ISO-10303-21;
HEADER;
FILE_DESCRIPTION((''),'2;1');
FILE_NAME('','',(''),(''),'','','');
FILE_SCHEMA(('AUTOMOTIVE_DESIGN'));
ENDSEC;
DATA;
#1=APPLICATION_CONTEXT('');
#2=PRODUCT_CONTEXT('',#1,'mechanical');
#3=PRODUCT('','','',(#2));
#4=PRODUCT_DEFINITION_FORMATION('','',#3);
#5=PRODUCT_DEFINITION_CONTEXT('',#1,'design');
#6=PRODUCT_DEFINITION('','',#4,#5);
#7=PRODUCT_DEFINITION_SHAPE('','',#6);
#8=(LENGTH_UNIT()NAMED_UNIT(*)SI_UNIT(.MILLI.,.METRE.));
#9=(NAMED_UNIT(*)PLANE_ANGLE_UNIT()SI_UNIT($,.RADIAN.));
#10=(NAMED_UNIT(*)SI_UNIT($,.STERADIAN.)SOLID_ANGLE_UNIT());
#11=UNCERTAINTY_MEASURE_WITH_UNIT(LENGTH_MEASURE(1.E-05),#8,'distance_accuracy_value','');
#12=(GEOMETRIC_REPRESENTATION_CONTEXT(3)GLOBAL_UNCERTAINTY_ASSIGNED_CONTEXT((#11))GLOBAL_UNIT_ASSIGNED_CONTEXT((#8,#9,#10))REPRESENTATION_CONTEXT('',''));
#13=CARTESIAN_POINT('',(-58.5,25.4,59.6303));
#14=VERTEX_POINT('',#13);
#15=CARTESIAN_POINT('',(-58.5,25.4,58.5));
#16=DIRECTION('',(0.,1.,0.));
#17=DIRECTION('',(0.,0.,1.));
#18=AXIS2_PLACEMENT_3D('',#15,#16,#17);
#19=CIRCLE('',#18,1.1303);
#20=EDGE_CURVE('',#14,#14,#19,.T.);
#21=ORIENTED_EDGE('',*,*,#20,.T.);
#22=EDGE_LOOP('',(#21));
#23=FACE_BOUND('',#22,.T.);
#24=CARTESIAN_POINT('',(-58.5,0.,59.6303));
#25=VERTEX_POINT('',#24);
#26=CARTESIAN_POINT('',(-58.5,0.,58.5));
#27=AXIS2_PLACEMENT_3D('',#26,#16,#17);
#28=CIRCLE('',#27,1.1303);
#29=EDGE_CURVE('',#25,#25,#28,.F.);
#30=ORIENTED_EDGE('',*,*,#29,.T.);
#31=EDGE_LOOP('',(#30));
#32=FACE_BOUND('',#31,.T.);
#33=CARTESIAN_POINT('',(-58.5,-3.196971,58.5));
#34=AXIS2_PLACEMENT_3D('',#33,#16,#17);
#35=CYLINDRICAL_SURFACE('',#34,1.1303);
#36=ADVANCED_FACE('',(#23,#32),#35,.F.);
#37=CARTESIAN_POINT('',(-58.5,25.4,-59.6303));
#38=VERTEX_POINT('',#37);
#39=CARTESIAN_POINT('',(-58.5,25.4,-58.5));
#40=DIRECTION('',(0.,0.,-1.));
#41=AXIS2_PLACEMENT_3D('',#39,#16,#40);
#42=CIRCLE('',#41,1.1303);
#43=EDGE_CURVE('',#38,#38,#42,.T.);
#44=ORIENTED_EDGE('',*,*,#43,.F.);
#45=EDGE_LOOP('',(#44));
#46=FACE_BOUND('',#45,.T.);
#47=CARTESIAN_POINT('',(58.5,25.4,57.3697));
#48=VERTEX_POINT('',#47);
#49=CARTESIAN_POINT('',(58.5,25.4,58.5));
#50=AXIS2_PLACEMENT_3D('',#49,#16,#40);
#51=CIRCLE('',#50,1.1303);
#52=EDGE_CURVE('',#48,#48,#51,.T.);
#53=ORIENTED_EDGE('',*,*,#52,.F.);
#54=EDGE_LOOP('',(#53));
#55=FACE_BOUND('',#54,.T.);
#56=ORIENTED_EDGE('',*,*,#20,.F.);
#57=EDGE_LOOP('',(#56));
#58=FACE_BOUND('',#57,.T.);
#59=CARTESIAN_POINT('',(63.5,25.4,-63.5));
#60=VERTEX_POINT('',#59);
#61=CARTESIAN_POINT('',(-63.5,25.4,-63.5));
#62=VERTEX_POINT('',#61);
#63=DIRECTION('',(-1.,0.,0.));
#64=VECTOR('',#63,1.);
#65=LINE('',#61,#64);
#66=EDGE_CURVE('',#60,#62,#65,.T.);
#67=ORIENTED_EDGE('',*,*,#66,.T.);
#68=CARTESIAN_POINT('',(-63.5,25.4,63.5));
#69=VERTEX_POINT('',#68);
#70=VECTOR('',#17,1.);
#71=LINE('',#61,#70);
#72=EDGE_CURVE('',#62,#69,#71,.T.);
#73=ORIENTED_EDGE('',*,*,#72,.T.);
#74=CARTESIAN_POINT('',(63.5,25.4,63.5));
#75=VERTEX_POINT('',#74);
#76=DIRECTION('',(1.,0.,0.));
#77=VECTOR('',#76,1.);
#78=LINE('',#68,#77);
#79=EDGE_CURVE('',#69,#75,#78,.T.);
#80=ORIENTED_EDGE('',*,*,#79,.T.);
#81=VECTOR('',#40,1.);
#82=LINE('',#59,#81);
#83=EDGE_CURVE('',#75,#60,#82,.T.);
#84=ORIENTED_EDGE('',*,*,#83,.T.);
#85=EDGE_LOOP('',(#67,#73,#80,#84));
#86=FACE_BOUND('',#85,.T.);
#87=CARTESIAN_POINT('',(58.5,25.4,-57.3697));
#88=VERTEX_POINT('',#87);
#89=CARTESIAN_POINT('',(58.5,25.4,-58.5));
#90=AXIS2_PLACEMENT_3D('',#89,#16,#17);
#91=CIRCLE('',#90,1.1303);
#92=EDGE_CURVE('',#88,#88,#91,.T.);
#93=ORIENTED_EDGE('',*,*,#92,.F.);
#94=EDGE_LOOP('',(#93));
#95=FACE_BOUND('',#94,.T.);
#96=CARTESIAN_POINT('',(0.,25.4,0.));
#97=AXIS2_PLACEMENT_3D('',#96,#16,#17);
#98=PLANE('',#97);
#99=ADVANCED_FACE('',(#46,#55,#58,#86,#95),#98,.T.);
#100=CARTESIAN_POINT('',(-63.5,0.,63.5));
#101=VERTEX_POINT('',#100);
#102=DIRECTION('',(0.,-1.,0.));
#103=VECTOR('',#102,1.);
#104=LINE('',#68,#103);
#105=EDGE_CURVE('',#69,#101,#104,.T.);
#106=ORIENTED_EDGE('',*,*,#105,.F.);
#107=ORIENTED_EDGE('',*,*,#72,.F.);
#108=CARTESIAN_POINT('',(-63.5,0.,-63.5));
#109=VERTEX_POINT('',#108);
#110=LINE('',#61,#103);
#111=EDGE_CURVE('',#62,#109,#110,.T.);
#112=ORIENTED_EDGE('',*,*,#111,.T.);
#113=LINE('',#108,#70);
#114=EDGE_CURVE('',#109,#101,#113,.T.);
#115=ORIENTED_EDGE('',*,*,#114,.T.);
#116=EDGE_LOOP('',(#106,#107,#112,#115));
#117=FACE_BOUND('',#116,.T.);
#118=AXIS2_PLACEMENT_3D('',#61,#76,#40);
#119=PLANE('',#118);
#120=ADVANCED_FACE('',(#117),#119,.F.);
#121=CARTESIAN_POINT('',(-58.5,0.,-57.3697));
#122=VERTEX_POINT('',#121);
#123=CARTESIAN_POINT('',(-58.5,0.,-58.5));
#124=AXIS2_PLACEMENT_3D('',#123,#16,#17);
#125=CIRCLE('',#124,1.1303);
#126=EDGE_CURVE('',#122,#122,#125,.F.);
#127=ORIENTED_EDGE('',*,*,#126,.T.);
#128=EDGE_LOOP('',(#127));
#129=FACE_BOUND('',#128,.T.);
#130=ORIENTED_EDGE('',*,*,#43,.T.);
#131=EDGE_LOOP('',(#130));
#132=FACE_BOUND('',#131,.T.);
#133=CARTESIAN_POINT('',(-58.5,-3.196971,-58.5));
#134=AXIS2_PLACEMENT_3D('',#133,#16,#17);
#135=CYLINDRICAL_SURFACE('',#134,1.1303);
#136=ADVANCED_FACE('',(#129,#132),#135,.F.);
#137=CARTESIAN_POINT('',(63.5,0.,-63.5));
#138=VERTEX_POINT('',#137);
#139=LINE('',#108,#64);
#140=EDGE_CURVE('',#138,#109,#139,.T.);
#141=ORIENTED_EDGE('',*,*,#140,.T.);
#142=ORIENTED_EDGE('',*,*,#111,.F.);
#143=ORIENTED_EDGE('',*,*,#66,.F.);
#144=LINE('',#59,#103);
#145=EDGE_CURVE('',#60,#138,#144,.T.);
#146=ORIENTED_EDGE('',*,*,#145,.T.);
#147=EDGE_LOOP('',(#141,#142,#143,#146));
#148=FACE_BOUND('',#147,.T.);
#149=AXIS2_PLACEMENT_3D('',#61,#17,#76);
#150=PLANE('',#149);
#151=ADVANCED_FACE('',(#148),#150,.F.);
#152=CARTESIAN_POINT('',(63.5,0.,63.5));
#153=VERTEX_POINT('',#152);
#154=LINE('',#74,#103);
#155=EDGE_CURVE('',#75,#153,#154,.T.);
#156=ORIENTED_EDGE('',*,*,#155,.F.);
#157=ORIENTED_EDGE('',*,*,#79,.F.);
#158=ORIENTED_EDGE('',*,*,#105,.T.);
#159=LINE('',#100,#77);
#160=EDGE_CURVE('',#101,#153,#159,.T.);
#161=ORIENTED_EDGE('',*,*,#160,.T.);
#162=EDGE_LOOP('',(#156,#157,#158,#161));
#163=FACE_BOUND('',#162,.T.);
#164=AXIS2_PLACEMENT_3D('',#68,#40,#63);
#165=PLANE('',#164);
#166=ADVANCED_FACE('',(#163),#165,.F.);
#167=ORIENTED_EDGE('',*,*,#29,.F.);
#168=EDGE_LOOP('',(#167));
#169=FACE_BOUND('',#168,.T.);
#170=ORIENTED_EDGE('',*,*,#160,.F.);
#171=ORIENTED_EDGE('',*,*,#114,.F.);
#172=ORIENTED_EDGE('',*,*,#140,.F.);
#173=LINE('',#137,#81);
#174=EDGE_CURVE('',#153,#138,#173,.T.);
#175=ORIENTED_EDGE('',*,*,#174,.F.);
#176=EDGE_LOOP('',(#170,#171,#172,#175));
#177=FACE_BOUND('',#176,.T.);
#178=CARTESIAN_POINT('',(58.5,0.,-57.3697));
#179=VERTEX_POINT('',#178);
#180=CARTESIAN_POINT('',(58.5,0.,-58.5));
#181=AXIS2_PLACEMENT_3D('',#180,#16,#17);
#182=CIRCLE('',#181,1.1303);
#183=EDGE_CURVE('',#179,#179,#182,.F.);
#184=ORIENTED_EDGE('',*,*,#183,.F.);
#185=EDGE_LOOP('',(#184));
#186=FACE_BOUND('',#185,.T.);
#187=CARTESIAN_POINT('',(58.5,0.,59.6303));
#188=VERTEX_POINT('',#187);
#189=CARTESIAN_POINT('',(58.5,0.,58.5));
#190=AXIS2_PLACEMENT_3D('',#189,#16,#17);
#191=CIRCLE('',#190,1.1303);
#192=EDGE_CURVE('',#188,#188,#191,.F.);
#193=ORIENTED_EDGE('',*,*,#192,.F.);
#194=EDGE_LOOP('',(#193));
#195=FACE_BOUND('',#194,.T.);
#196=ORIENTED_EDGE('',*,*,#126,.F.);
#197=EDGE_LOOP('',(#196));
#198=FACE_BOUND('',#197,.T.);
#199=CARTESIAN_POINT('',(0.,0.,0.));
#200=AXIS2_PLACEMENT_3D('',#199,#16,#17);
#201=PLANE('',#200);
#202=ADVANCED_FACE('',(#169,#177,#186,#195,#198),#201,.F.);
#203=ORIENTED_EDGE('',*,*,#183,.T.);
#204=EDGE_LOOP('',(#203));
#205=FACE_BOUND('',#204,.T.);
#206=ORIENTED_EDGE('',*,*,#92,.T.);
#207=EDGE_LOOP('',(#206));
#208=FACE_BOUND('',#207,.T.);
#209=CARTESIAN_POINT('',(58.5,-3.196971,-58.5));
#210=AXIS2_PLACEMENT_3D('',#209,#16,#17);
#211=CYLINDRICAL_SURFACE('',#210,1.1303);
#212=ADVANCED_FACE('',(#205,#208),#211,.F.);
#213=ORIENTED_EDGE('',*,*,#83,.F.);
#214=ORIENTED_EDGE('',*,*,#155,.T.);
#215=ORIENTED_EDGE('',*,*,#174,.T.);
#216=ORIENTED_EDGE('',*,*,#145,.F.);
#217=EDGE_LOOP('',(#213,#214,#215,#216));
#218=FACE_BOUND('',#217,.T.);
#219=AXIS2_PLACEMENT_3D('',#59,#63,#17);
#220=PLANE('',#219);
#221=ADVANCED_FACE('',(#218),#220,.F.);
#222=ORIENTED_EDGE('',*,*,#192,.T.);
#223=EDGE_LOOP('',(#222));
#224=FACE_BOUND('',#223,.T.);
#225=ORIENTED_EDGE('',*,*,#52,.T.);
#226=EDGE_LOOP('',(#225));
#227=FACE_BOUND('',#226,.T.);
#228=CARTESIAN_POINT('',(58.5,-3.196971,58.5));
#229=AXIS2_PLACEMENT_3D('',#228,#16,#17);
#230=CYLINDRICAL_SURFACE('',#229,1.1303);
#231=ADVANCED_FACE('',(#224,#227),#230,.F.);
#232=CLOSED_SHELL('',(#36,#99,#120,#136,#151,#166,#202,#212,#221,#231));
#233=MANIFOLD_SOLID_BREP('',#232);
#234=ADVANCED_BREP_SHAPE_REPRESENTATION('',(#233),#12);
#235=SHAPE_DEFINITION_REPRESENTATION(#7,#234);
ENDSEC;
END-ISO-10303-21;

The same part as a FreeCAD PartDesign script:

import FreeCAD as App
import Part
import Sketcher

V = App.Vector
Q = App.Units.Quantity

doc = App.newDocument("Part")
params = doc.addObject("Spreadsheet::Sheet", "Params")
for row, (alias, value) in enumerate([
    ("sketch1_width", "5 in"),
    ("pad1_length", "1 in"),
    ("sketch2_diameter", "0.089 in"),
    ("pocket1_length", "1 in"),
], start=1):
    params.set(f"A{row}", alias)
    params.set(f"B{row}", "=" + value)
    params.setAlias(f"B{row}", alias)

body = doc.addObject("PartDesign::Body", "Body")

# Sketch on XZ plane
sketch1 = body.newObject("Sketcher::SketchObject", "Sketch")
sketch1.AttachmentSupport = (doc.getObject("XZ_Plane"), [""])
sketch1.MapMode = "FlatFace"
sketch1.addGeometry(Part.LineSegment(V(-63.5, -63.5, 0), V(-63.5, 63.5, 0)), False)
sketch1.addGeometry(Part.LineSegment(V(-63.5, 63.5, 0), V(63.5, 63.5, 0)), False)
sketch1.addGeometry(Part.LineSegment(V(63.5, 63.5, 0), V(63.5, -63.5, 0)), False)
sketch1.addGeometry(Part.LineSegment(V(63.5, -63.5, 0), V(-63.5, -63.5, 0)), False)
sketch1.addConstraint(Sketcher.Constraint("Coincident", 0, 2, 1, 1))
sketch1.addConstraint(Sketcher.Constraint("Coincident", 1, 2, 2, 1))
sketch1.addConstraint(Sketcher.Constraint("Coincident", 2, 2, 3, 1))
sketch1.addConstraint(Sketcher.Constraint("Coincident", 3, 2, 0, 1))
sketch1.addConstraint(Sketcher.Constraint("Vertical", 0))
sketch1.addConstraint(Sketcher.Constraint("Horizontal", 1))
sketch1.addConstraint(Sketcher.Constraint("Vertical", 2))
sketch1.addConstraint(Sketcher.Constraint("Horizontal", 3))
sketch1.addConstraint(Sketcher.Constraint("Symmetric", 0, 2, 2, 2, -1, 1))
sketch1.addConstraint(Sketcher.Constraint("Equal", 3, 0))
sketch1.addConstraint(Sketcher.Constraint("DistanceX", 1, 1, 1, 2, Q("5 in")))
sketch1.setExpression("Constraints[10]", "Params.sketch1_width")
pad1 = body.newObject("PartDesign::Pad", "Pad")
pad1.Profile = sketch1
pad1.setExpression("Length", "Params.pad1_length")
pad1.Reversed = True

# Sketch on XZ plane
sketch2 = body.newObject("Sketcher::SketchObject", "Sketch001")
sketch2.AttachmentSupport = (doc.getObject("XZ_Plane"), [""])
sketch2.MapMode = "FlatFace"
sketch2.AttachmentOffset = App.Placement(V(0, 0, -1 * 25.4), App.Rotation())
sketch2.addGeometry(Part.Circle(V(-58.5, 58.5, 0), V(0, 0, 1), 1.1303), False)
sketch2.addGeometry(Part.Circle(V(58.5, 58.5, 0), V(0, 0, 1), 1.1303), False)
sketch2.addGeometry(Part.Circle(V(58.5, -58.5, 0), V(0, 0, 1), 1.1303), False)
sketch2.addGeometry(Part.Circle(V(-58.5, -58.5, 0), V(0, 0, 1), 1.1303), False)
sketch2.addConstraint(Sketcher.Constraint("Equal", 0, 1))
sketch2.addConstraint(Sketcher.Constraint("Equal", 1, 2))
sketch2.addConstraint(Sketcher.Constraint("Equal", 2, 3))
sketch2.addConstraint(Sketcher.Constraint("Symmetric", 0, 3, 2, 3, -1, 1))
sketch2.addConstraint(Sketcher.Constraint("Symmetric", 1, 3, 3, 3, -1, 1))
sketch2.addConstraint(Sketcher.Constraint("Symmetric", 0, 3, 1, 3, -2))
sketch2.addConstraint(Sketcher.Constraint("Diameter", 0, Q("0.089 in")))
sketch2.addConstraint(Sketcher.Constraint("DistanceX", 0, 3, -1, 1, 58.5))
sketch2.addConstraint(Sketcher.Constraint("DistanceY", -1, 1, 0, 3, 58.5))
sketch2.setExpression("Constraints[6]", "Params.sketch2_diameter")
pocket1 = body.newObject("PartDesign::Pocket", "Pocket")
pocket1.Profile = sketch2
pocket1.setExpression("Length", "Params.pocket1_length")
pocket1.Reversed = True

doc.recompute()
